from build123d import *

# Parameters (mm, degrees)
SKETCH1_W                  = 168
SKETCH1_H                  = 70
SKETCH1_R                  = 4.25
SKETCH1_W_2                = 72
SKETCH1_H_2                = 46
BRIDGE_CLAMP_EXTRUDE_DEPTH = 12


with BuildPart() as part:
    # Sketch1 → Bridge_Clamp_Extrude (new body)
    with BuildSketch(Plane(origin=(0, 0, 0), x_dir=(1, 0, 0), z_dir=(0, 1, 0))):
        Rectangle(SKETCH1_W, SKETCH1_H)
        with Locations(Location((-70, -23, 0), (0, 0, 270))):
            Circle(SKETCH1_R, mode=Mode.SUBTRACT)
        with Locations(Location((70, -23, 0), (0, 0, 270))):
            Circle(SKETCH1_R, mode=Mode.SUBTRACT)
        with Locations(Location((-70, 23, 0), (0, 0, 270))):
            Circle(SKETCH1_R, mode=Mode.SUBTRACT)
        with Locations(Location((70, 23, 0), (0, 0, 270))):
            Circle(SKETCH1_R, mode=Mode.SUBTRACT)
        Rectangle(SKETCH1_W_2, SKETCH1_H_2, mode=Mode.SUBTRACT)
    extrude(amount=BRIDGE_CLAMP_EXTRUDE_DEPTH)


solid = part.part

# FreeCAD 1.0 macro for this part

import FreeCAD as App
import Part
import Sketcher

V = App.Vector
Q = App.Units.Quantity

doc = App.newDocument("Part")
body = doc.addObject("PartDesign::Body", "Body")

# Sketch on XZ plane
sketch1 = body.newObject("Sketcher::SketchObject", "Sketch")
sketch1.AttachmentSupport = (doc.getObject("XZ_Plane"), [""])
sketch1.MapMode = "FlatFace"
sketch1.addGeometry([
    Part.LineSegment(V(-84, -35, 0), V(-84, 35, 0)),  # 0
    Part.LineSegment(V(-84, 35, 0), V(84, 35, 0)),  # 1
    Part.LineSegment(V(84, 35, 0), V(84, -35, 0)),  # 2
    Part.LineSegment(V(84, -35, 0), V(-84, -35, 0)),  # 3
    Part.Circle(V(-70, 23, 0), V(0, 0, 1), 4.2),  # 4
    Part.Circle(V(70, 23, 0), V(0, 0, 1), 4.2),  # 5
    Part.Circle(V(-70, -23, 0), V(0, 0, 1), 4.2),  # 6
    Part.LineSegment(V(36, 23, 0), V(-36, 23, 0)),  # 7
    Part.LineSegment(V(-36, 23, 0), V(-36, -23, 0)),  # 8
    Part.LineSegment(V(-36, -23, 0), V(36, -23, 0)),  # 9
    Part.LineSegment(V(36, -23, 0), V(36, 23, 0)),  # 10
    Part.Circle(V(70, -23, 0), V(0, 0, 1), 4.2),  # 11
], False)
sketch1.addConstraint([
    Sketcher.Constraint("Coincident", 0, 2, 1, 1),
    Sketcher.Constraint("Coincident", 1, 2, 2, 1),
    Sketcher.Constraint("Coincident", 2, 2, 3, 1),
    Sketcher.Constraint("Coincident", 3, 2, 0, 1),
    Sketcher.Constraint("Coincident", 7, 2, 8, 1),
    Sketcher.Constraint("Coincident", 8, 2, 9, 1),
    Sketcher.Constraint("Coincident", 9, 2, 10, 1),
    Sketcher.Constraint("Coincident", 10, 2, 7, 1),
    Sketcher.Constraint("Vertical", 0),
    Sketcher.Constraint("Horizontal", 1),
    Sketcher.Constraint("Vertical", 2),
    Sketcher.Constraint("Horizontal", 3),
    Sketcher.Constraint("Horizontal", 7),
    Sketcher.Constraint("Vertical", 8),
    Sketcher.Constraint("Horizontal", 9),
    Sketcher.Constraint("Vertical", 10),
    Sketcher.Constraint("Equal", 4, 5),
    Sketcher.Constraint("Equal", 5, 6),
    Sketcher.Constraint("Equal", 6, 11),
    Sketcher.Constraint("Symmetric", 5, 3, 6, 3, -1, 1),
    Sketcher.Constraint("Symmetric", 4, 3, 11, 3, -1, 1),
    Sketcher.Constraint("Symmetric", 0, 2, 2, 2, -1, 1),
    Sketcher.Constraint("Symmetric", 7, 2, 9, 2, -1, 1),
    Sketcher.Constraint("Symmetric", 4, 3, 5, 3, -2),
    Sketcher.Constraint("Horizontal", 5, 3, 7, 2),
    Sketcher.Constraint("Diameter", 4, Q("8.5 mm")),
    Sketcher.Constraint("DistanceX", 1, 1, 1, 2, Q("168 mm")),
    Sketcher.Constraint("DistanceX", 7, 2, 7, 1, Q("72 mm")),
    Sketcher.Constraint("DistanceY", 0, 1, 0, 2, Q("70 mm")),
    Sketcher.Constraint("DistanceY", 8, 2, 8, 1, Q("46 mm")),
    Sketcher.Constraint("DistanceX", 4, 3, -1, 1, Q("70 mm")),
])
pad1 = body.newObject("PartDesign::Pad", "Pad")
pad1.Profile = sketch1
pad1.Length = 12
pad1.Reversed = True

doc.recompute()
